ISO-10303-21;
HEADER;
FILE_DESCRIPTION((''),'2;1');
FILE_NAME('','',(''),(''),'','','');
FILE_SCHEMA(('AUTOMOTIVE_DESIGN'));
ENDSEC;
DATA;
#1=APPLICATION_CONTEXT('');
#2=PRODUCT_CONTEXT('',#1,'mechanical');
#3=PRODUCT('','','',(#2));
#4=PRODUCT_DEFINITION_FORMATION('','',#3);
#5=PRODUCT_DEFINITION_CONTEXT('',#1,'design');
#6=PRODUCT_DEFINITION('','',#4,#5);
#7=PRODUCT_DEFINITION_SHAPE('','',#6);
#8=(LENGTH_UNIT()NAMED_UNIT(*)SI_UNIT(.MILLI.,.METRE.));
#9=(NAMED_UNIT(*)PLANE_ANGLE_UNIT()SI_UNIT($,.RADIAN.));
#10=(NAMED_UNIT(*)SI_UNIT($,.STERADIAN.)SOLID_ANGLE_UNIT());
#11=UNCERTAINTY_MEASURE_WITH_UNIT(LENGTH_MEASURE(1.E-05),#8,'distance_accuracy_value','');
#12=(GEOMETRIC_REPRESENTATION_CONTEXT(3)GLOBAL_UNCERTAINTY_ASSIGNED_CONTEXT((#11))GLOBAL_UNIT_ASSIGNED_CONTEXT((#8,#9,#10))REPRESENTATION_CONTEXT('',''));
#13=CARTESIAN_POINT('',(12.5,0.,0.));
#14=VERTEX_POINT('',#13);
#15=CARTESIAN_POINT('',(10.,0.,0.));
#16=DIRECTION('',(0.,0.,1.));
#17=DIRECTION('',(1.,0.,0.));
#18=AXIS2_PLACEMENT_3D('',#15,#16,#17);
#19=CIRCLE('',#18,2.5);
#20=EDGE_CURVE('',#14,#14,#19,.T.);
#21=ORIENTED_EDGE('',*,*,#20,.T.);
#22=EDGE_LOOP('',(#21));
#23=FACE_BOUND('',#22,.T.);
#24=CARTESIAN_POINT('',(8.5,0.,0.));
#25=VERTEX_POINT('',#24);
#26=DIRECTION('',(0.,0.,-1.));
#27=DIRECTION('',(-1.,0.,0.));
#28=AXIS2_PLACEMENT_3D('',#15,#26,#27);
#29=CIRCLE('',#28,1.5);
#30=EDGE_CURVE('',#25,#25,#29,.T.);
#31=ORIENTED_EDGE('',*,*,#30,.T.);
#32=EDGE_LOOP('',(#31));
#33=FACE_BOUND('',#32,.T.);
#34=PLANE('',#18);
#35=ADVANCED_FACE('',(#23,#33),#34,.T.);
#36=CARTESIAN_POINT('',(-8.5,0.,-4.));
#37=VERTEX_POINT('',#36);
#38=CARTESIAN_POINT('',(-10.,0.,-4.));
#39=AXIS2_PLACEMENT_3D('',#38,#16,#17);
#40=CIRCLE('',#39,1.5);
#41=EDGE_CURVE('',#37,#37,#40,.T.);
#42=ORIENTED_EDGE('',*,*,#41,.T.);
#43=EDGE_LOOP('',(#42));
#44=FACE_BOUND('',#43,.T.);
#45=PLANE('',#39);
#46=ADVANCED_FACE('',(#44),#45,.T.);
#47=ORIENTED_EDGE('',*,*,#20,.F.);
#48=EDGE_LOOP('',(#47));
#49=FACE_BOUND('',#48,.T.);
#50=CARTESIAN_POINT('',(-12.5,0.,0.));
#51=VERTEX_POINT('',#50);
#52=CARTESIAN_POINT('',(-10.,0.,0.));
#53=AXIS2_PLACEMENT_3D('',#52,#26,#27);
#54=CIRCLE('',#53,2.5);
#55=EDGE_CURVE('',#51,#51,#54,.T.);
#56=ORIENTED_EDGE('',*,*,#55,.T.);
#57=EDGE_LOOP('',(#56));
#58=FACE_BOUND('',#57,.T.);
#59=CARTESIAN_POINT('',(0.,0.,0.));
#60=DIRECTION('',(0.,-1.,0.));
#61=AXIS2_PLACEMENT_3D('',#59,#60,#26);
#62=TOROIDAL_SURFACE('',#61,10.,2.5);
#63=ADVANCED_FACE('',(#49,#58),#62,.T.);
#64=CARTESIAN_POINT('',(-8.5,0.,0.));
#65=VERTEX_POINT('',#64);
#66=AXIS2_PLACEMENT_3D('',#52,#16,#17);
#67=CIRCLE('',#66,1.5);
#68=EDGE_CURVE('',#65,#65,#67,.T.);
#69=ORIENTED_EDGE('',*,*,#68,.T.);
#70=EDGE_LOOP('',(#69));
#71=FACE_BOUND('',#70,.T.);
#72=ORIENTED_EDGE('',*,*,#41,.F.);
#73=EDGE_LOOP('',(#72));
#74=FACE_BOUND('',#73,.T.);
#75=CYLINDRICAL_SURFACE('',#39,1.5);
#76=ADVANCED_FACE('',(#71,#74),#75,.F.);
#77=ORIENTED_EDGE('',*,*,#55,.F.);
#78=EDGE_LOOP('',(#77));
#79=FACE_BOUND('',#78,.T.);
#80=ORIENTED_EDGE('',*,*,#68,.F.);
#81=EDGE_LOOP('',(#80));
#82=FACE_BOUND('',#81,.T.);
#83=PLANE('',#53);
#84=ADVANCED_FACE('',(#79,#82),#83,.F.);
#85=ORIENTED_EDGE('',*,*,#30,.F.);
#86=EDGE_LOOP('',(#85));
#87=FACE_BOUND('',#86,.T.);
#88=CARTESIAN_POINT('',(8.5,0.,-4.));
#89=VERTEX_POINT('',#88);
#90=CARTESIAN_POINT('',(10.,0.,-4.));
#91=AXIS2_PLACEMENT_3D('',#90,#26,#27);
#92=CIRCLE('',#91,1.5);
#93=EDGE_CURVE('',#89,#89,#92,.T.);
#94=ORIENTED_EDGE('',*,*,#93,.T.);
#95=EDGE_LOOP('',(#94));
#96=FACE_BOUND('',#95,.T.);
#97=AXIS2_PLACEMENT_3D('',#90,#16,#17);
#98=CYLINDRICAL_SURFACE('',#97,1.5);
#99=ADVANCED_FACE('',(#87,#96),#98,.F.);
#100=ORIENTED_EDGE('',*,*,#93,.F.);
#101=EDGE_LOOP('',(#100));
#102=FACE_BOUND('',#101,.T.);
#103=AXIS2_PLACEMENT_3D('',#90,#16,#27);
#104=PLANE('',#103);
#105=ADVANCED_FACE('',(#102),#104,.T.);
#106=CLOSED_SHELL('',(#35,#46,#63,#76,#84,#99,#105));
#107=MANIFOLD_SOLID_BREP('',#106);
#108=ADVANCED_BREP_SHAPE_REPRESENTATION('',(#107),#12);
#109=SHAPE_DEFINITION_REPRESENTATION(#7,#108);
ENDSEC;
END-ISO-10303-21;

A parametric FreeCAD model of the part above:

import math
import FreeCAD as App
import Part
import Sketcher

V = App.Vector
Q = App.Units.Quantity

doc = App.newDocument("Part")
body = doc.addObject("PartDesign::Body", "Body")

# Sketch on XY plane
sketch1 = doc.addObject("Sketcher::SketchObject", "Sketch")
body.addObject(sketch1)
sketch1.AttachmentSupport = (doc.XY_Plane, [""])
sketch1.MapMode = "FlatFace"
sketch1.addGeometry(Part.Circle(V(-10, 0, 0), V(0, 0, 1), 2.5), False)
sketch1.addConstraint([
    Sketcher.Constraint("PointOnObject", 0, 3, -1),
    Sketcher.Constraint("Diameter", 0, Q("5 mm")),
    Sketcher.Constraint("DistanceX", 0, 3, -1, 1, Q("10 mm")),
])

# Sketch on XZ plane
sketch2 = doc.addObject("Sketcher::SketchObject", "Sketch001")
body.addObject(sketch2)
sketch2.AttachmentSupport = (doc.XZ_Plane, [""])
sketch2.MapMode = "FlatFace"
sketch2.addGeometry(Part.ArcOfCircle(Part.Circle(V(0, 0, 0), V(0, 0, 1), 10), math.radians(180), math.radians(360)), False)
sketch2.addConstraint([
    Sketcher.Constraint("Coincident", 0, 3, -1, 1),
    Sketcher.Constraint("PointOnObject", 0, 1, -1),
    Sketcher.Constraint("PointOnObject", 0, 2, -1),
    Sketcher.Constraint("Radius", 0, Q("10 mm")),
])
doc.recompute()

additivepipe = doc.addObject("PartDesign::AdditivePipe", "AdditivePipe")
body.addObject(additivepipe)
additivepipe.Profile = sketch1
additivepipe.Spine = (sketch2, ["Edge1"])

# Sketch on XY plane
sketch3 = doc.addObject("Sketcher::SketchObject", "Sketch002")
body.addObject(sketch3)
sketch3.AttachmentSupport = (doc.XY_Plane, [""])
sketch3.MapMode = "FlatFace"
sketch3.addGeometry(Part.Circle(V(-10, 0, 0), V(0, 0, 1), 1.5), False)
sketch3.addConstraint([
    Sketcher.Constraint("PointOnObject", 0, 3, -1),
    Sketcher.Constraint("Diameter", 0, Q("3 mm")),
    Sketcher.Constraint("DistanceX", 0, 3, -1, 1, Q("10 mm")),
])
pocket1 = doc.addObject("PartDesign::Pocket", "Pocket")
body.addObject(pocket1)
pocket1.Profile = sketch3
pocket1.Length = 4
doc.recompute()

mirrored = doc.addObject("PartDesign::Mirrored", "Mirrored")
body.addObject(mirrored)
mirrored.Originals = [pocket1]
mirrored.MirrorPlane = (doc.YZ_Plane, [""])
body.Tip = mirrored

doc.recompute()
